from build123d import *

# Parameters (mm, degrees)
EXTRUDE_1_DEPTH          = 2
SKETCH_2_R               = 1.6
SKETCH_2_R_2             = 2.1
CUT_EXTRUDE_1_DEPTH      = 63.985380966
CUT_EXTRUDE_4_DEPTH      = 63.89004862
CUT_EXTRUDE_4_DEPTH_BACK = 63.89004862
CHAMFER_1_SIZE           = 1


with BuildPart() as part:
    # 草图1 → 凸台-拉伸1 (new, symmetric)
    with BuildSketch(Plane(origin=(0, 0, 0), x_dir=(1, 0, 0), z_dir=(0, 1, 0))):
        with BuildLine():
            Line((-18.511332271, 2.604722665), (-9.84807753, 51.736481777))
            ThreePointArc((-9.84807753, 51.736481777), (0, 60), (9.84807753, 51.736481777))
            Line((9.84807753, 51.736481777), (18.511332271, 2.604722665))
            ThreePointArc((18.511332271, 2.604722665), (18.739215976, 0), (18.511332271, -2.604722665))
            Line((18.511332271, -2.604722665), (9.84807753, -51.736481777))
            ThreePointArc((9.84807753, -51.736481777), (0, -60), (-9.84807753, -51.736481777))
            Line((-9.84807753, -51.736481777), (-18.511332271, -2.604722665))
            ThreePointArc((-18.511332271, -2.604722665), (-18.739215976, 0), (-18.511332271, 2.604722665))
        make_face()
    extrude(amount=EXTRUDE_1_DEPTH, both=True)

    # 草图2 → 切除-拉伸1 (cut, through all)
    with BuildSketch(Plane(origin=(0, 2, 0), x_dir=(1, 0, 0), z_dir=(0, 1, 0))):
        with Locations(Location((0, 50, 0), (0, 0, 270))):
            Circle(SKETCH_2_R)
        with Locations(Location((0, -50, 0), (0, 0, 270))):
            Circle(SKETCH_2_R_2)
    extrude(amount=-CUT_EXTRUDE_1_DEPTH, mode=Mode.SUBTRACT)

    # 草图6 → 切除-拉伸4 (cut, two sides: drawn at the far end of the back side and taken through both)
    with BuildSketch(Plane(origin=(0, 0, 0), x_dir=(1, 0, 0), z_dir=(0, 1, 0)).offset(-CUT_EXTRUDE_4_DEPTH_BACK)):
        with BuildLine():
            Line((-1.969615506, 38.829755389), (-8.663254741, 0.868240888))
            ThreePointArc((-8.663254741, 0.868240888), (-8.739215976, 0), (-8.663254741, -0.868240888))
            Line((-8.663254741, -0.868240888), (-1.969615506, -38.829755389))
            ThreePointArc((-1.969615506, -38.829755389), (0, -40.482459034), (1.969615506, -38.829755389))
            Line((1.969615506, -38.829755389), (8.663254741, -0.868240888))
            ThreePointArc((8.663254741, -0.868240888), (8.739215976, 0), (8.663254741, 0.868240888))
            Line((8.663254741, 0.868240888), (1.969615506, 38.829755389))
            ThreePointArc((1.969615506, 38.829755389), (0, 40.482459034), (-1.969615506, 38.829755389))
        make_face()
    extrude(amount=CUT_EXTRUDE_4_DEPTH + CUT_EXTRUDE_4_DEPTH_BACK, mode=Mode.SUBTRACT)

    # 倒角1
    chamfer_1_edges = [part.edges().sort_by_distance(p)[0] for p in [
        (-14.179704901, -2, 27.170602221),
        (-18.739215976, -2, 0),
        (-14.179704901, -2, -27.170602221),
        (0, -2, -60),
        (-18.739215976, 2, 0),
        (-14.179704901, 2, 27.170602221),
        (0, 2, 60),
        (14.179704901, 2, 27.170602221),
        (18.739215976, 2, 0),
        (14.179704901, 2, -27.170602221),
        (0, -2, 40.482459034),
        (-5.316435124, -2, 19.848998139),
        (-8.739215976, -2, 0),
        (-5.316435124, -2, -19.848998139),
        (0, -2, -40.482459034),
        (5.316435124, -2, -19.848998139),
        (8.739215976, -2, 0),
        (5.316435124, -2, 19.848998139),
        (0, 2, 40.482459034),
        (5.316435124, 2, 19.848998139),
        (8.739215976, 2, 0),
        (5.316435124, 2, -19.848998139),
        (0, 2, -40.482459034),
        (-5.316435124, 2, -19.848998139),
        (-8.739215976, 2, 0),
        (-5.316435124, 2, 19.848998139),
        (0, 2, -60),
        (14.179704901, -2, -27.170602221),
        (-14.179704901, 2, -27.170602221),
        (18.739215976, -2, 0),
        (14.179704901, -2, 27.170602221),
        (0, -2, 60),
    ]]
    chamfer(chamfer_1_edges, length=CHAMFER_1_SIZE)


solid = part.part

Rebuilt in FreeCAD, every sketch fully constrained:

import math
import FreeCAD as App
import Part
import Sketcher
from FreeCAD import Vector
Q = App.Units.Quantity


def edges_at(feature, points):
    """Names of the edges that pass closest to the given points."""
    edges = feature.Shape.Edges
    near = lambda p: min(range(len(edges)), key=lambda i: edges[i].distToShape(Part.Vertex(*p))[0])
    return sorted({f"Edge{near(p) + 1}" for p in points})

doc = App.newDocument("Part")
body = doc.addObject("PartDesign::Body", "Body")

sketch1 = body.newObject("Sketcher::SketchObject", "Sketch")
sketch1.AttachmentSupport = (doc.getObject("XZ_Plane"), [""])
sketch1.MapMode = "FlatFace"
sketch1.addGeometry([
    Part.LineSegment(Vector(-10, -52, 0), Vector(-19, -3, 0)),
    Part.ArcOfCircle(Part.Circle(Vector(-4, 0, 0), Vector(0, 0, 1), 15), math.radians(170), math.radians(190)),
    Part.LineSegment(Vector(-19, 3, 0), Vector(-10, 52, 0)),
    Part.ArcOfCircle(Part.Circle(Vector(0, 50, 0), Vector(0, 0, 1), 10), math.radians(10), math.radians(170)),
    Part.LineSegment(Vector(10, 52, 0), Vector(19, 3, 0)),
    Part.ArcOfCircle(Part.Circle(Vector(4, 0, 0), Vector(0, 0, 1), 15), math.radians(-10), math.radians(10)),
    Part.LineSegment(Vector(19, -3, 0), Vector(10, -52, 0)),
    Part.ArcOfCircle(Part.Circle(Vector(0, -50, 0), Vector(0, 0, 1), 10), math.radians(-170), math.radians(-10)),
], False)
sketch1.addConstraint([
    Sketcher.Constraint("Tangent", 0, 2, 1, 2),
    Sketcher.Constraint("Tangent", 1, 1, 2, 1),
    Sketcher.Constraint("Tangent", 2, 2, 3, 2),
    Sketcher.Constraint("Tangent", 3, 1, 4, 1),
    Sketcher.Constraint("Tangent", 4, 2, 5, 2),
    Sketcher.Constraint("Tangent", 5, 1, 6, 1),
    Sketcher.Constraint("Tangent", 6, 2, 7, 2),
    Sketcher.Constraint("Tangent", 7, 1, 0, 1),
    Sketcher.Constraint("Equal", 1, 5),
    Sketcher.Constraint("Equal", 3, 7),
    Sketcher.Constraint("Symmetric", 1, 3, 5, 3, -1, 1),
    Sketcher.Constraint("Symmetric", 3, 3, 7, 3, -1, 1),
    Sketcher.Constraint("Symmetric", 2, 2, 3, 1, -2),
    Sketcher.Constraint("Radius", 1, 15.0),
    Sketcher.Constraint("Radius", 3, 10.0),
    Sketcher.Constraint("Angle", 0, Q("100 deg")),
    Sketcher.Constraint("DistanceY", -1, 1, 3, 3, 50.0),
])
pad1 = body.newObject("PartDesign::Pad", "Pad")
pad1.Profile = sketch1
pad1.Length = 4
pad1.Midplane = True

sketch2 = body.newObject("Sketcher::SketchObject", "Sketch001")
sketch2.AttachmentSupport = (doc.getObject("XZ_Plane"), [""])
sketch2.MapMode = "FlatFace"
sketch2.AttachmentOffset = App.Placement(Vector(0, 0, -2), App.Rotation())
sketch2.addGeometry([
    Part.Circle(Vector(0, -50, 0), Vector(0, 0, 1), 1.6),
    Part.Circle(Vector(0, 50, 0), Vector(0, 0, 1), 2.1),
], False)
sketch2.addConstraint([
    Sketcher.Constraint("Symmetric", 0, 3, 1, 3, -1, 1),
    Sketcher.Constraint("PointOnObject", 0, 3, -2),
    Sketcher.Constraint("Diameter", 0, 3.2),
    Sketcher.Constraint("Diameter", 1, 4.2),
    Sketcher.Constraint("DistanceY", 0, 3, -1, 1, 50.0),
])
pocket1 = body.newObject("PartDesign::Pocket", "Pocket")
pocket1.Profile = sketch2
pocket1.Type = "ThroughAll"
pocket1.Reversed = True

sketch3 = body.newObject("Sketcher::SketchObject", "Sketch002")
sketch3.AttachmentSupport = (doc.getObject("XZ_Plane"), [""])
sketch3.MapMode = "FlatFace"
sketch3.addGeometry([
    Part.LineSegment(Vector(-2, -38.8, 0), Vector(-8.7, -0.9, 0)),
    Part.ArcOfCircle(Part.Circle(Vector(-3.7, 0, 0), Vector(0, 0, 1), 5), math.radians(170), math.radians(190)),
    Part.LineSegment(Vector(-8.7, 0.9, 0), Vector(-2, 38.8, 0)),
    Part.ArcOfCircle(Part.Circle(Vector(0, 38.5, 0), Vector(0, 0, 1), 2), math.radians(10), math.radians(170)),
    Part.LineSegment(Vector(2, 38.8, 0), Vector(8.7, 0.9, 0)),
    Part.ArcOfCircle(Part.Circle(Vector(3.7, 0, 0), Vector(0, 0, 1), 5), math.radians(-10), math.radians(10)),
    Part.LineSegment(Vector(8.7, -0.9, 0), Vector(2, -38.8, 0)),
    Part.ArcOfCircle(Part.Circle(Vector(0, -38.5, 0), Vector(0, 0, 1), 2), math.radians(-170), math.radians(-10)),
], False)
sketch3.addConstraint([
    Sketcher.Constraint("Tangent", 0, 2, 1, 2),
    Sketcher.Constraint("Tangent", 1, 1, 2, 1),
    Sketcher.Constraint("Tangent", 2, 2, 3, 2),
    Sketcher.Constraint("Tangent", 3, 1, 4, 1),
    Sketcher.Constraint("Tangent", 4, 2, 5, 2),
    Sketcher.Constraint("Tangent", 5, 1, 6, 1),
    Sketcher.Constraint("Tangent", 6, 2, 7, 2),
    Sketcher.Constraint("Tangent", 7, 1, 0, 1),
    Sketcher.Constraint("Equal", 1, 5),
    Sketcher.Constraint("Equal", 3, 7),
    Sketcher.Constraint("Symmetric", 1, 3, 5, 3, -1, 1),
    Sketcher.Constraint("Symmetric", 3, 3, 7, 3, -1, 1),
    Sketcher.Constraint("Symmetric", 2, 2, 3, 1, -2),
    Sketcher.Constraint("Radius", 1, 5.0),
    Sketcher.Constraint("Radius", 3, 2.0),
    Sketcher.Constraint("Angle", 0, Q("100 deg")),
    Sketcher.Constraint("DistanceY", 0, 2, 3, 3, 39.3507),
])
pocket2 = body.newObject("PartDesign::Pocket", "Pocket001")
pocket2.Profile = sketch3
pocket2.Type = "ThroughAll"
pocket2.Midplane = True
doc.recompute()

chamfer = body.newObject("PartDesign::Chamfer", "Chamfer")
chamfer.Base = (pocket2, edges_at(pocket2, [
    (-14.18, -2, 27.171),
    (-18.739, -2, 0),
    (-14.18, -2, -27.171),
    (0, -2, -60),
    (-18.739, 2, 0),
    (-14.18, 2, 27.171),
    (0, 2, 60),
    (14.18, 2, 27.171),
    (18.739, 2, 0),
    (14.18, 2, -27.171),
    (0, -2, 40.482),
    (-5.316, -2, 19.849),
    (-8.739, -2, 0),
    (-5.316, -2, -19.849),
    (0, -2, -40.482),
    (5.316, -2, -19.849),
    (8.739, -2, 0),
    (5.316, -2, 19.849),
    (0, 2, 40.482),
    (5.316, 2, 19.849),
    (8.739, 2, 0),
    (5.316, 2, -19.849),
    (0, 2, -40.482),
    (-5.316, 2, -19.849),
    (-8.739, 2, 0),
    (-5.316, 2, 19.849),
    (0, 2, -60),
    (14.18, -2, -27.171),
    (-14.18, 2, -27.171),
    (18.739, -2, 0),
    (14.18, -2, 27.171),
    (0, -2, 60),
]))
chamfer.Size = 1

doc.recompute()
